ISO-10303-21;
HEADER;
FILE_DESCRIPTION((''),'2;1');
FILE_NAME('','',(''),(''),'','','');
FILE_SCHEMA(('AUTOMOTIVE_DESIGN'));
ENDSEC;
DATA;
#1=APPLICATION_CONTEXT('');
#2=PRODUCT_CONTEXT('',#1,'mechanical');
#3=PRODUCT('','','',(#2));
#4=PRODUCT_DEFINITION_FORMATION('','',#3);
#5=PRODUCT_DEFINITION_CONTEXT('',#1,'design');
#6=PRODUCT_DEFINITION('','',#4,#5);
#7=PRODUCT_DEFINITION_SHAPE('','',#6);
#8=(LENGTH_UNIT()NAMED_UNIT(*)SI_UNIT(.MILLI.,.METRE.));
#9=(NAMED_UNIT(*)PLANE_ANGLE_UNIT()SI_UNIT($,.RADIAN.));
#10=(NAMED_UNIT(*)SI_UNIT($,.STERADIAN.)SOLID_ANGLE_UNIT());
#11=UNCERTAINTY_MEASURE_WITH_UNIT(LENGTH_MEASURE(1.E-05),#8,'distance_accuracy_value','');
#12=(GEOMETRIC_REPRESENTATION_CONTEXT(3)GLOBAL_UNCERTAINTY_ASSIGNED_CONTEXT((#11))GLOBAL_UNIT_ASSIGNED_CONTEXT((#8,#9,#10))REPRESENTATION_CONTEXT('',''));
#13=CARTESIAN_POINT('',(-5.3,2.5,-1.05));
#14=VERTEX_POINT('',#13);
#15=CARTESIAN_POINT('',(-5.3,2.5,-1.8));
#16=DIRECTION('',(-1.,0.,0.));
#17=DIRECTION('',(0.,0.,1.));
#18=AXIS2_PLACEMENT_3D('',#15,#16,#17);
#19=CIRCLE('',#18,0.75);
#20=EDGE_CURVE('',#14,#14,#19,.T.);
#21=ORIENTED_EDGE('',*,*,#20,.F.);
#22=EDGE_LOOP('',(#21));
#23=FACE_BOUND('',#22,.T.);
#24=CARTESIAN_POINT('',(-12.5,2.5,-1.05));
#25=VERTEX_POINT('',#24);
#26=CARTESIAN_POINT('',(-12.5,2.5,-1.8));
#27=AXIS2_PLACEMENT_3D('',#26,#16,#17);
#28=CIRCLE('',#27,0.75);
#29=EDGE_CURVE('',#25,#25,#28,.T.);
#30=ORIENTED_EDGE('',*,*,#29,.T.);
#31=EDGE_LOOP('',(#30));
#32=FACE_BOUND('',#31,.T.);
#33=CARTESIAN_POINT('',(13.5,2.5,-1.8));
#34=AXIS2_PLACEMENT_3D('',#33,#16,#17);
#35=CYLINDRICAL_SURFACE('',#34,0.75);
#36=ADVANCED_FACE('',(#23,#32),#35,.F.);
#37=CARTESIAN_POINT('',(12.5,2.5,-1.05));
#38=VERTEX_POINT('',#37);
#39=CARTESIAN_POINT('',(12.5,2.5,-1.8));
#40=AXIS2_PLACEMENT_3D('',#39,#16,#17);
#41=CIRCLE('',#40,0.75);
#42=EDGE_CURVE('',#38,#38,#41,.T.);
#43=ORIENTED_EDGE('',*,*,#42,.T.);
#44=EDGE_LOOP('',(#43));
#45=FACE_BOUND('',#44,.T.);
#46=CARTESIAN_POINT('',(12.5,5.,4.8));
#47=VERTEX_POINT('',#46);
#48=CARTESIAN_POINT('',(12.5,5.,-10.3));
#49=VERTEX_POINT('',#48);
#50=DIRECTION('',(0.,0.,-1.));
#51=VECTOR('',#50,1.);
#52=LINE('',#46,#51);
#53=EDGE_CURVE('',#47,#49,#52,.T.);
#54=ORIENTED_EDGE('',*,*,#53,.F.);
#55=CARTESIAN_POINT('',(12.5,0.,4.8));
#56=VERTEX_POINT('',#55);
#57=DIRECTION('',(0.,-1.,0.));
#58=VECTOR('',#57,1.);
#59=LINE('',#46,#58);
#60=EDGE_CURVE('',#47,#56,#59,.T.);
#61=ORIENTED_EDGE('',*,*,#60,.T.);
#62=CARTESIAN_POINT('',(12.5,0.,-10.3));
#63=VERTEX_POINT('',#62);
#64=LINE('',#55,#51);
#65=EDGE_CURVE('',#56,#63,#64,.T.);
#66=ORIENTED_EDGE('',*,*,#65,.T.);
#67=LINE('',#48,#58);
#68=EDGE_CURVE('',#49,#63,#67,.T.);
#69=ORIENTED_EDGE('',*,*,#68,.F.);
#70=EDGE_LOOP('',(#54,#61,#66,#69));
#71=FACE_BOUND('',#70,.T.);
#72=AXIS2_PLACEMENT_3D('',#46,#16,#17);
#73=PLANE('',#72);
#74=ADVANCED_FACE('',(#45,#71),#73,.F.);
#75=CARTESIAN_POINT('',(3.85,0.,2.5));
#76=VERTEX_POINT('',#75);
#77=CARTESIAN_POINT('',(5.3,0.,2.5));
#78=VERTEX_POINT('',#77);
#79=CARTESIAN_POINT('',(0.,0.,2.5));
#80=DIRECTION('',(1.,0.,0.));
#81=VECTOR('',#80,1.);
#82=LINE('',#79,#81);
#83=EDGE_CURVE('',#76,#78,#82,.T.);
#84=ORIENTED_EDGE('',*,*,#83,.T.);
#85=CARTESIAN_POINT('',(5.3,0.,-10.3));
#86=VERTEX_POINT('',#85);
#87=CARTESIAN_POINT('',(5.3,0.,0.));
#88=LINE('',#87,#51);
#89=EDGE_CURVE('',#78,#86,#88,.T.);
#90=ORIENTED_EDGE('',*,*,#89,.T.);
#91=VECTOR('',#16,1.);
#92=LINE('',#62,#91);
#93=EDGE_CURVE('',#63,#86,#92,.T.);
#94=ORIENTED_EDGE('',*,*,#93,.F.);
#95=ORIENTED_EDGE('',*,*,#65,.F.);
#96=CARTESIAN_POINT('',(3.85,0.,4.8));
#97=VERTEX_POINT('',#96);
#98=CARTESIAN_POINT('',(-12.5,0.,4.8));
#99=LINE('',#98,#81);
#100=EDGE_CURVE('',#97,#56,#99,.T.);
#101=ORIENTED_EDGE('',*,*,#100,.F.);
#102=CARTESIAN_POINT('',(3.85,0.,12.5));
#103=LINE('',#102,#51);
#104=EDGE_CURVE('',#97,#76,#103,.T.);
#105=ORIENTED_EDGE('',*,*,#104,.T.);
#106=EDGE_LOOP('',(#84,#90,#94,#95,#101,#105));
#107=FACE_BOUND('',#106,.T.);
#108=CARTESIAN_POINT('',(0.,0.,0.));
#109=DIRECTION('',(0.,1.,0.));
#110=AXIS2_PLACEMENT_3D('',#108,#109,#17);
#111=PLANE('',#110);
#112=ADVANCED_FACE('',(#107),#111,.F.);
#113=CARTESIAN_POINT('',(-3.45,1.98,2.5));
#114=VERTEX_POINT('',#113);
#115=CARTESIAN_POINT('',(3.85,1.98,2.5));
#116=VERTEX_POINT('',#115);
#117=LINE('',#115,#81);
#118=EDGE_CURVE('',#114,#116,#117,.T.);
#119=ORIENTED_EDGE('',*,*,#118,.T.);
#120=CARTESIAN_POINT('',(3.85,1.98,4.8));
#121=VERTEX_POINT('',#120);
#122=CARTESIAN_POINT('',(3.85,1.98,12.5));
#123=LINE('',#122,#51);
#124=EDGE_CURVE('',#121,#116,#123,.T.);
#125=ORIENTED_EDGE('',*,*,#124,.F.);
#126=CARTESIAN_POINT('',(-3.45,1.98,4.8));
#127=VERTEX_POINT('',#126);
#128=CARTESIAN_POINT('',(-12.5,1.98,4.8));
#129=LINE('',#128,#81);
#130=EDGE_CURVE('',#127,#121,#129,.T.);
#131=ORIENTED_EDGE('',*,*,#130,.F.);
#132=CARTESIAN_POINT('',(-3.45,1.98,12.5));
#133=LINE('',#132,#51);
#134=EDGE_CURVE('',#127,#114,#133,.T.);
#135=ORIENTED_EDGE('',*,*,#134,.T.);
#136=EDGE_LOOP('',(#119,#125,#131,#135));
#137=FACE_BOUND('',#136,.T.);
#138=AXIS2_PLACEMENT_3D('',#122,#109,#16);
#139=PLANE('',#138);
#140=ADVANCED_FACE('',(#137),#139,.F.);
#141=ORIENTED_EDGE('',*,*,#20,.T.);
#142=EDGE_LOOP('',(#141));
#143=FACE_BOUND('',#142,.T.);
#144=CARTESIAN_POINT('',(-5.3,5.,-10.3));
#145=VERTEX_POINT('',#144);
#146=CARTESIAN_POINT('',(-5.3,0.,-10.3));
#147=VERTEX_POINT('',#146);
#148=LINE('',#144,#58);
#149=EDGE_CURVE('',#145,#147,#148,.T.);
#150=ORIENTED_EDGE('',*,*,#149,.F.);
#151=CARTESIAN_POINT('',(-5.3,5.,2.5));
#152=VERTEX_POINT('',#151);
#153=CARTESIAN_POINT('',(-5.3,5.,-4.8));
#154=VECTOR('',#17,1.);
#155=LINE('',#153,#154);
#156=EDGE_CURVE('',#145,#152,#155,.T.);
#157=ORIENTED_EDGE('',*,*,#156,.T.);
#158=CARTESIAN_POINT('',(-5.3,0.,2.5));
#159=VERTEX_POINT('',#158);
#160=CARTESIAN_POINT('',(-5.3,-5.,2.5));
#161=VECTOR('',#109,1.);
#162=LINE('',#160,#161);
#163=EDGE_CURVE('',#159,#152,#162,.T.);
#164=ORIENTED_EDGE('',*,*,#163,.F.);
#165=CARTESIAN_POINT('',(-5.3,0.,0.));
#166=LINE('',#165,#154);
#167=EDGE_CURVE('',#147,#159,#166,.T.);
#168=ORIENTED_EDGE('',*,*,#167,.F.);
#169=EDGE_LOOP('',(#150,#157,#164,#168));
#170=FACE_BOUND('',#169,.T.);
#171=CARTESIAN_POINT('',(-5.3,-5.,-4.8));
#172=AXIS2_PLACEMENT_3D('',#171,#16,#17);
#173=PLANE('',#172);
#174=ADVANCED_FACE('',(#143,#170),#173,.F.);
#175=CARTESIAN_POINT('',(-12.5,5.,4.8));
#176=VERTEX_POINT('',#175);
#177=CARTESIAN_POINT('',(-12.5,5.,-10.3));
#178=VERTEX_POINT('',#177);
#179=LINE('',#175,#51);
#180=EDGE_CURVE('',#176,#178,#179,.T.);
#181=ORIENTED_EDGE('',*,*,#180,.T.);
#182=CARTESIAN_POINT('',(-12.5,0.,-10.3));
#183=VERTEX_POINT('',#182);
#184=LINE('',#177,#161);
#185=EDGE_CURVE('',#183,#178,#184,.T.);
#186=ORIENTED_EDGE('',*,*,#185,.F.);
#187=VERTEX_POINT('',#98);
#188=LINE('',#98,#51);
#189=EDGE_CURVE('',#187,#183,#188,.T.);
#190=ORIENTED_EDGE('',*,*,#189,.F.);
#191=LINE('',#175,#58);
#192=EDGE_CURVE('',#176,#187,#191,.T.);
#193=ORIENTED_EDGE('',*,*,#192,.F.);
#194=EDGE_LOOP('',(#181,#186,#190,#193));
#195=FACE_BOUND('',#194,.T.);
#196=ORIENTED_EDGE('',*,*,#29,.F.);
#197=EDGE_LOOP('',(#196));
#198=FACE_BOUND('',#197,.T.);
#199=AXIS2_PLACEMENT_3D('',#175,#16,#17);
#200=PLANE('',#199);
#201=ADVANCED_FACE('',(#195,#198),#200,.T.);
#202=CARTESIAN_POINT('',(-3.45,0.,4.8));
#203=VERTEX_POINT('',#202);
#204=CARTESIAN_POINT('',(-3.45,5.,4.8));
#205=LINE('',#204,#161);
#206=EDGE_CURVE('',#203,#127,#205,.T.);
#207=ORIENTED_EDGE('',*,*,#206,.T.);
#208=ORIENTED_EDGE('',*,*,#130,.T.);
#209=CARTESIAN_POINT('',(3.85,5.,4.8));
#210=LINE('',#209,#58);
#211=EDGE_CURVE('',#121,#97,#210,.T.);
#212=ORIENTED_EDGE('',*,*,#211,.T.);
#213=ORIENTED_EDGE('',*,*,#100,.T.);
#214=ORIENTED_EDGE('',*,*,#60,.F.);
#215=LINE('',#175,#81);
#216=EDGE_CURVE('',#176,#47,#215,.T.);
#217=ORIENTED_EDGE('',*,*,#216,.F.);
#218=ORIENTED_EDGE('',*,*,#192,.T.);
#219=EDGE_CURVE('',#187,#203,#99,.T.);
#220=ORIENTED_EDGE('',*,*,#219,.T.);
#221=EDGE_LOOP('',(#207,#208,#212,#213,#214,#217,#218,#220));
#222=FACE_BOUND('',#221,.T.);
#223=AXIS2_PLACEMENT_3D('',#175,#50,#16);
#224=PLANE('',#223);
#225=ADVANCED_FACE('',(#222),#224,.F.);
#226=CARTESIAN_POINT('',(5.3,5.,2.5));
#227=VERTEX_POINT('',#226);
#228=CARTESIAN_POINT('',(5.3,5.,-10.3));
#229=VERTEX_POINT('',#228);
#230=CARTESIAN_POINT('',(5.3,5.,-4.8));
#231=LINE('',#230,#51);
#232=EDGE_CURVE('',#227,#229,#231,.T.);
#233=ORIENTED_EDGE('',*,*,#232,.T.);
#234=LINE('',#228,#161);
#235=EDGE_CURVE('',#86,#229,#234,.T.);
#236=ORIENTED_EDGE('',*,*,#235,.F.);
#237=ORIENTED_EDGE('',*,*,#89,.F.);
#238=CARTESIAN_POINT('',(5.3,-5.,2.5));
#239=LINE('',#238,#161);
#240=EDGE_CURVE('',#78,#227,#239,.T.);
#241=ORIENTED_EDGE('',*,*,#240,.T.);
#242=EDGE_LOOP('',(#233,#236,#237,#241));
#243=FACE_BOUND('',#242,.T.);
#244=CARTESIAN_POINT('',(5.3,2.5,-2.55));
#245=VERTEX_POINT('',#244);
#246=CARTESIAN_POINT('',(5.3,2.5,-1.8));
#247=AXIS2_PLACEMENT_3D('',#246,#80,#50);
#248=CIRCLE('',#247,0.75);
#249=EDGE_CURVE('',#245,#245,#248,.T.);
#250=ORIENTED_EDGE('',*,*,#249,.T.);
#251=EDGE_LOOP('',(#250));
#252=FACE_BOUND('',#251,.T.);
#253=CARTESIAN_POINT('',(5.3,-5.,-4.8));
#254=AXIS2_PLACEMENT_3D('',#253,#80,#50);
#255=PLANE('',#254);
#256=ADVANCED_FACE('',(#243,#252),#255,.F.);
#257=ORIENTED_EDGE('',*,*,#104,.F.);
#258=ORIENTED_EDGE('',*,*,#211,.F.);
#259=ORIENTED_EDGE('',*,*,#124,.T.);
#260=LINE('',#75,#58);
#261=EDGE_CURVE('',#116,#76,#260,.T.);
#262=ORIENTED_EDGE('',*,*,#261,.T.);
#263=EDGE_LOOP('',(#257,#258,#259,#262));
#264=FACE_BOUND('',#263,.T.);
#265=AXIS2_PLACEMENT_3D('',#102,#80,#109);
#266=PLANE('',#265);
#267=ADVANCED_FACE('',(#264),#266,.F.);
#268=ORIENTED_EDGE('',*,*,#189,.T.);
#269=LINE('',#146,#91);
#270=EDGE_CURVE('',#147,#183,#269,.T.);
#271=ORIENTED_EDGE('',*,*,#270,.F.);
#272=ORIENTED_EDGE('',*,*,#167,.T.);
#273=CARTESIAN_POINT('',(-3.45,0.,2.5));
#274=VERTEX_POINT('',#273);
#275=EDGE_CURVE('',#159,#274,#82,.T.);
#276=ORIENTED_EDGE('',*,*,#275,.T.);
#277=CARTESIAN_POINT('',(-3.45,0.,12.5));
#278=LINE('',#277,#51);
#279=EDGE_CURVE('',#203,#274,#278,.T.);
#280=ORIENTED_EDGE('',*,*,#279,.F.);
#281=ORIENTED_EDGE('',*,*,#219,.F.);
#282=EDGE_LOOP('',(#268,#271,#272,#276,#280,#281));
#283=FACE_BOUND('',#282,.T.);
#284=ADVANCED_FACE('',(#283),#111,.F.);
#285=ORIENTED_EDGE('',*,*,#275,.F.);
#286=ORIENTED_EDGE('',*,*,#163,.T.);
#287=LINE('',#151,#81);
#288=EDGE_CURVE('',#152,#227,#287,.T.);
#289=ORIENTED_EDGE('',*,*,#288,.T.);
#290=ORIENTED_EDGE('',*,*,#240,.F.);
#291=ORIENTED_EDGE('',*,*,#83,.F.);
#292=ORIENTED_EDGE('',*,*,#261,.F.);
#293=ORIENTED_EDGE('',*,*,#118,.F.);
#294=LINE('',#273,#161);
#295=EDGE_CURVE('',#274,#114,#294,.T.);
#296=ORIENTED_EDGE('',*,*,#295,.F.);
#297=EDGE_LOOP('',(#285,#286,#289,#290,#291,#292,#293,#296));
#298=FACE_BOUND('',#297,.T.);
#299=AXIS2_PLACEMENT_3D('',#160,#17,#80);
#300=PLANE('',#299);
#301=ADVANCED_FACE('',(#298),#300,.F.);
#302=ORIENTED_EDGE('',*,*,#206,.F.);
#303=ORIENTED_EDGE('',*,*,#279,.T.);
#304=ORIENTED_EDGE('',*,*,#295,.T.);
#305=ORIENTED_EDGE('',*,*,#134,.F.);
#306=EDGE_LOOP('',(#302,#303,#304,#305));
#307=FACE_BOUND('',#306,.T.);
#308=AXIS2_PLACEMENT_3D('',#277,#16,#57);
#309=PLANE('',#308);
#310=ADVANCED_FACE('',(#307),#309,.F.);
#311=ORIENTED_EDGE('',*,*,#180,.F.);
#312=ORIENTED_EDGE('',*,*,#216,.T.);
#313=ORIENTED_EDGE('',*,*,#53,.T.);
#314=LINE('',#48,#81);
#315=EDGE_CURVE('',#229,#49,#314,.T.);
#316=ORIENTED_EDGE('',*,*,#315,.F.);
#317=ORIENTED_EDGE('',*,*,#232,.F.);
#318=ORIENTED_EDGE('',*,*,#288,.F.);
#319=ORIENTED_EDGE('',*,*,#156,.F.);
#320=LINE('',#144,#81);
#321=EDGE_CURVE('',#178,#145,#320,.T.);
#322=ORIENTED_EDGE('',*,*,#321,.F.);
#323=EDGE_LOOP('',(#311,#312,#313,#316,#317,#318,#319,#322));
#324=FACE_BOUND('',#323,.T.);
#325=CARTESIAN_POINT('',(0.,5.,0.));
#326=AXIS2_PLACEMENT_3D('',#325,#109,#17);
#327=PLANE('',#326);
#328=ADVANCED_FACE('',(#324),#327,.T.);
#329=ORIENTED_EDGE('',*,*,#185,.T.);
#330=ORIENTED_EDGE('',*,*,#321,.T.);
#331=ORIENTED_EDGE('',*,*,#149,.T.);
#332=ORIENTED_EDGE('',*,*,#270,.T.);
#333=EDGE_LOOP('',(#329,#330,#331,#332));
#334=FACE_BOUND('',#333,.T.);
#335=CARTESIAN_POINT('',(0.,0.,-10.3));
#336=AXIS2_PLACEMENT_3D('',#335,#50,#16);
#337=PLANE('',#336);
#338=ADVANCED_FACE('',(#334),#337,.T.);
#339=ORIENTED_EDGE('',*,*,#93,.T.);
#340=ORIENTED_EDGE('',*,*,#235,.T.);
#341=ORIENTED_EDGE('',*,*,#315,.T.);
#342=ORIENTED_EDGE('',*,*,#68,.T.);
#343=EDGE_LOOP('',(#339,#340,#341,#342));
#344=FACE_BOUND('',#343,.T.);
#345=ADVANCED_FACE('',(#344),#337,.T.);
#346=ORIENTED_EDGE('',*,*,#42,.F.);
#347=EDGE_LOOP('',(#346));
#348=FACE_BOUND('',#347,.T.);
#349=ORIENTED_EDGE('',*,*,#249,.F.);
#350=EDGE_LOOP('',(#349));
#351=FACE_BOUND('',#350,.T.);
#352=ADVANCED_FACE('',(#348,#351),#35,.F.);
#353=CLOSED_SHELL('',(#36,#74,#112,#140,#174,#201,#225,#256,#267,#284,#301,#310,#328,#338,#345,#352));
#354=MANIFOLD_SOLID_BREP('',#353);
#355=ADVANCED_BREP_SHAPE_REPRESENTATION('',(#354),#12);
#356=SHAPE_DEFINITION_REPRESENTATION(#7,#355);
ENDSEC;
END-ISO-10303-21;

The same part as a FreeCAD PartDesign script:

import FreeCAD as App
import Part
import Sketcher

doc = App.newDocument("Part")
params = doc.addObject("Spreadsheet::Sheet", "Params")
for row, (alias, value) in enumerate([
    ("sketch1_width", "25 mm"),
    ("sketch1_height", "9.6 mm"),
    ("pad1_length", "5 mm"),
    ("sketch2_width", "10.6 mm"),
    ("sketch2_height", "7.3 mm"),
    ("pocket1_length", "10 mm"),
    ("sketch3_width", "7.3 mm"),
    ("sketch3_height", "1.98 mm"),
    ("pocket2_length", "10 mm"),
    ("sketch4_diameter", "1.5 mm"),
    ("pocket3_length", "26 mm"),
    ("sketch5_height", "5 mm"),
    ("sketch5_width", "7.2 mm"),
    ("pad2_length", "5.5 mm"),
], start=1):
    params.set(f"A{row}", alias)
    params.set(f"B{row}", "=" + value)
    params.setAlias(f"B{row}", alias)

body = doc.addObject("PartDesign::Body", "Body")

# Sketch on XZ plane
sketch1 = body.newObject("Sketcher::SketchObject", "Sketch")
sketch1.AttachmentSupport = (doc.getObject("XZ_Plane"), [""])
sketch1.MapMode = "FlatFace"
sketch1.addGeometry([
    Part.LineSegment(App.Vector(-12, -5, 0), App.Vector(-12, 5, 0)),
    Part.LineSegment(App.Vector(-12, 5, 0), App.Vector(12, 5, 0)),
    Part.LineSegment(App.Vector(12, 5, 0), App.Vector(12, -5, 0)),
    Part.LineSegment(App.Vector(12, -5, 0), App.Vector(-12, -5, 0)),
], False)
sketch1.addConstraint([
    Sketcher.Constraint("Coincident", 0, 2, 1, 1),
    Sketcher.Constraint("Coincident", 1, 2, 2, 1),
    Sketcher.Constraint("Coincident", 2, 2, 3, 1),
    Sketcher.Constraint("Coincident", 3, 2, 0, 1),
    Sketcher.Constraint("Vertical", 0),
    Sketcher.Constraint("Horizontal", 1),
    Sketcher.Constraint("Vertical", 2),
    Sketcher.Constraint("Horizontal", 3),
    Sketcher.Constraint("Symmetric", 0, 2, 2, 2, -1, 1),
    Sketcher.Constraint("DistanceX", 1, 1, 1, 2, 25.0),
    Sketcher.Constraint("DistanceY", 0, 1, 0, 2, 9.6),
])
sketch1.setExpression("Constraints[9]", "Params.sketch1_width")
sketch1.setExpression("Constraints[10]", "Params.sketch1_height")
pad1 = body.newObject("PartDesign::Pad", "Pad")
pad1.Profile = sketch1
pad1.setExpression("Length", "Params.pad1_length")
pad1.Reversed = True

# Sketch on XZ plane
sketch2 = body.newObject("Sketcher::SketchObject", "Sketch001")
sketch2.AttachmentSupport = (doc.getObject("XZ_Plane"), [""])
sketch2.MapMode = "FlatFace"
sketch2.AttachmentOffset = App.Placement(App.Vector(0, 0, -5), App.Rotation())
sketch2.addGeometry([
    Part.LineSegment(App.Vector(-5, -5, 0), App.Vector(-5, 2, 0)),
    Part.LineSegment(App.Vector(-5, 2, 0), App.Vector(5, 2, 0)),
    Part.LineSegment(App.Vector(5, 2, 0), App.Vector(5, -5, 0)),
    Part.LineSegment(App.Vector(5, -5, 0), App.Vector(-5, -5, 0)),
], False)
sketch2.addConstraint([
    Sketcher.Constraint("Coincident", 0, 2, 1, 1),
    Sketcher.Constraint("Coincident", 1, 2, 2, 1),
    Sketcher.Constraint("Coincident", 2, 2, 3, 1),
    Sketcher.Constraint("Coincident", 3, 2, 0, 1),
    Sketcher.Constraint("Vertical", 0),
    Sketcher.Constraint("Horizontal", 1),
    Sketcher.Constraint("Vertical", 2),
    Sketcher.Constraint("Horizontal", 3),
    Sketcher.Constraint("DistanceX", 1, 1, 1, 2, 10.6),
    Sketcher.Constraint("DistanceY", 0, 1, 0, 2, 7.3),
    Sketcher.Constraint("DistanceX", 0, 2, -1, 1, 5.3),
    Sketcher.Constraint("DistanceY", -1, 1, 0, 2, 2.5),
])
sketch2.setExpression("Constraints[8]", "Params.sketch2_width")
sketch2.setExpression("Constraints[9]", "Params.sketch2_height")
pocket1 = body.newObject("PartDesign::Pocket", "Pocket")
pocket1.Profile = sketch2
pocket1.setExpression("Length", "Params.pocket1_length")
pocket1.Reversed = True

# Sketch on XY plane
sketch3 = body.newObject("Sketcher::SketchObject", "Sketch002")
sketch3.AttachmentSupport = (doc.getObject("XY_Plane"), [""])
sketch3.MapMode = "FlatFace"
sketch3.AttachmentOffset = App.Placement(App.Vector(0, 0, 2.5), App.Rotation())
sketch3.addGeometry([
    Part.LineSegment(App.Vector(3.9, 2, 0), App.Vector(3.9, 0, 0)),
    Part.LineSegment(App.Vector(3.9, 0, 0), App.Vector(-3.5, 0, 0)),
    Part.LineSegment(App.Vector(-3.5, 0, 0), App.Vector(-3.5, 2, 0)),
    Part.LineSegment(App.Vector(-3.5, 2, 0), App.Vector(3.9, 2, 0)),
], False)
sketch3.addConstraint([
    Sketcher.Constraint("Coincident", 0, 2, 1, 1),
    Sketcher.Constraint("Coincident", 1, 2, 2, 1),
    Sketcher.Constraint("Coincident", 2, 2, 3, 1),
    Sketcher.Constraint("Coincident", 3, 2, 0, 1),
    Sketcher.Constraint("Vertical", 0),
    Sketcher.Constraint("Horizontal", 1),
    Sketcher.Constraint("Vertical", 2),
    Sketcher.Constraint("Horizontal", 3),
    Sketcher.Constraint("PointOnObject", 0, 2, -1),
    Sketcher.Constraint("DistanceX", 1, 2, 1, 1, 7.3),
    Sketcher.Constraint("DistanceY", 0, 2, 0, 1, 1.98),
    Sketcher.Constraint("DistanceX", -1, 1, 0, 2, 3.85),
])
sketch3.setExpression("Constraints[9]", "Params.sketch3_width")
sketch3.setExpression("Constraints[10]", "Params.sketch3_height")
pocket2 = body.newObject("PartDesign::Pocket", "Pocket001")
pocket2.Profile = sketch3
pocket2.setExpression("Length", "Params.pocket2_length")
pocket2.Reversed = True

# Sketch on YZ plane
sketch4 = body.newObject("Sketcher::SketchObject", "Sketch003")
sketch4.AttachmentSupport = (doc.getObject("YZ_Plane"), [""])
sketch4.MapMode = "FlatFace"
sketch4.AttachmentOffset = App.Placement(App.Vector(0, 0, -12.5), App.Rotation())
sketch4.addGeometry(Part.Circle(App.Vector(2.5, -1.8, 0), App.Vector(0, 0, 1), 0.8), False)
sketch4.addConstraint([
    Sketcher.Constraint("Diameter", 0, 1.5),
    Sketcher.Constraint("DistanceX", -1, 1, 0, 3, 2.5),
    Sketcher.Constraint("DistanceY", 0, 3, -1, 1, 1.8),
])
sketch4.setExpression("Constraints[0]", "Params.sketch4_diameter")
pocket3 = body.newObject("PartDesign::Pocket", "Pocket002")
pocket3.Profile = sketch4
pocket3.setExpression("Length", "Params.pocket3_length")
pocket3.Reversed = True

# Sketch on XY plane
sketch5 = body.newObject("Sketcher::SketchObject", "Sketch004")
sketch5.AttachmentSupport = (doc.getObject("XY_Plane"), [""])
sketch5.MapMode = "FlatFace"
sketch5.AttachmentOffset = App.Placement(App.Vector(0, 0, -4.8), App.Rotation())
sketch5.addGeometry([
    Part.LineSegment(App.Vector(12, 5, 0), App.Vector(12, 0, 0)),  # 0
    Part.LineSegment(App.Vector(12, 0, 0), App.Vector(5, 0, 0)),  # 1
    Part.LineSegment(App.Vector(5, 0, 0), App.Vector(5, 5, 0)),  # 2
    Part.LineSegment(App.Vector(5, 5, 0), App.Vector(12, 5, 0)),  # 3
    Part.LineSegment(App.Vector(-5, 5, 0), App.Vector(-5, 0, 0)),  # 4
    Part.LineSegment(App.Vector(-5, 0, 0), App.Vector(-12, 0, 0)),  # 5
    Part.LineSegment(App.Vector(-12, 0, 0), App.Vector(-12, 5, 0)),  # 6
    Part.LineSegment(App.Vector(-12, 5, 0), App.Vector(-5, 5, 0)),  # 7
], False)
sketch5.addConstraint([
    Sketcher.Constraint("Coincident", 0, 2, 1, 1),
    Sketcher.Constraint("Coincident", 1, 2, 2, 1),
    Sketcher.Constraint("Coincident", 2, 2, 3, 1),
    Sketcher.Constraint("Coincident", 3, 2, 0, 1),
    Sketcher.Constraint("Coincident", 4, 2, 5, 1),
    Sketcher.Constraint("Coincident", 5, 2, 6, 1),
    Sketcher.Constraint("Coincident", 6, 2, 7, 1),
    Sketcher.Constraint("Coincident", 7, 2, 4, 1),
    Sketcher.Constraint("Vertical", 0),
    Sketcher.Constraint("Horizontal", 1),
    Sketcher.Constraint("Vertical", 2),
    Sketcher.Constraint("Horizontal", 3),
    Sketcher.Constraint("Vertical", 4),
    Sketcher.Constraint("Horizontal", 5),
    Sketcher.Constraint("Vertical", 6),
    Sketcher.Constraint("Horizontal", 7),
    Sketcher.Constraint("Symmetric", 1, 2, 4, 2, -1, 1),
    Sketcher.Constraint("Symmetric", 0, 2, 5, 2, -2),
    Sketcher.Constraint("Horizontal", 3, 2, 6, 2),
    Sketcher.Constraint("DistanceY", 0, 2, 0, 1, 5.0),
    Sketcher.Constraint("DistanceX", 1, 2, 1, 1, 7.2),
    Sketcher.Constraint("DistanceX", 5, 2, 0, 2, 25.0),
])
sketch5.setExpression("Constraints[19]", "Params.sketch5_height")
sketch5.setExpression("Constraints[20]", "Params.sketch5_width")
pad2 = body.newObject("PartDesign::Pad", "Pad001")
pad2.Profile = sketch5
pad2.setExpression("Length", "Params.pad2_length")
pad2.Reversed = True

doc.recompute()
